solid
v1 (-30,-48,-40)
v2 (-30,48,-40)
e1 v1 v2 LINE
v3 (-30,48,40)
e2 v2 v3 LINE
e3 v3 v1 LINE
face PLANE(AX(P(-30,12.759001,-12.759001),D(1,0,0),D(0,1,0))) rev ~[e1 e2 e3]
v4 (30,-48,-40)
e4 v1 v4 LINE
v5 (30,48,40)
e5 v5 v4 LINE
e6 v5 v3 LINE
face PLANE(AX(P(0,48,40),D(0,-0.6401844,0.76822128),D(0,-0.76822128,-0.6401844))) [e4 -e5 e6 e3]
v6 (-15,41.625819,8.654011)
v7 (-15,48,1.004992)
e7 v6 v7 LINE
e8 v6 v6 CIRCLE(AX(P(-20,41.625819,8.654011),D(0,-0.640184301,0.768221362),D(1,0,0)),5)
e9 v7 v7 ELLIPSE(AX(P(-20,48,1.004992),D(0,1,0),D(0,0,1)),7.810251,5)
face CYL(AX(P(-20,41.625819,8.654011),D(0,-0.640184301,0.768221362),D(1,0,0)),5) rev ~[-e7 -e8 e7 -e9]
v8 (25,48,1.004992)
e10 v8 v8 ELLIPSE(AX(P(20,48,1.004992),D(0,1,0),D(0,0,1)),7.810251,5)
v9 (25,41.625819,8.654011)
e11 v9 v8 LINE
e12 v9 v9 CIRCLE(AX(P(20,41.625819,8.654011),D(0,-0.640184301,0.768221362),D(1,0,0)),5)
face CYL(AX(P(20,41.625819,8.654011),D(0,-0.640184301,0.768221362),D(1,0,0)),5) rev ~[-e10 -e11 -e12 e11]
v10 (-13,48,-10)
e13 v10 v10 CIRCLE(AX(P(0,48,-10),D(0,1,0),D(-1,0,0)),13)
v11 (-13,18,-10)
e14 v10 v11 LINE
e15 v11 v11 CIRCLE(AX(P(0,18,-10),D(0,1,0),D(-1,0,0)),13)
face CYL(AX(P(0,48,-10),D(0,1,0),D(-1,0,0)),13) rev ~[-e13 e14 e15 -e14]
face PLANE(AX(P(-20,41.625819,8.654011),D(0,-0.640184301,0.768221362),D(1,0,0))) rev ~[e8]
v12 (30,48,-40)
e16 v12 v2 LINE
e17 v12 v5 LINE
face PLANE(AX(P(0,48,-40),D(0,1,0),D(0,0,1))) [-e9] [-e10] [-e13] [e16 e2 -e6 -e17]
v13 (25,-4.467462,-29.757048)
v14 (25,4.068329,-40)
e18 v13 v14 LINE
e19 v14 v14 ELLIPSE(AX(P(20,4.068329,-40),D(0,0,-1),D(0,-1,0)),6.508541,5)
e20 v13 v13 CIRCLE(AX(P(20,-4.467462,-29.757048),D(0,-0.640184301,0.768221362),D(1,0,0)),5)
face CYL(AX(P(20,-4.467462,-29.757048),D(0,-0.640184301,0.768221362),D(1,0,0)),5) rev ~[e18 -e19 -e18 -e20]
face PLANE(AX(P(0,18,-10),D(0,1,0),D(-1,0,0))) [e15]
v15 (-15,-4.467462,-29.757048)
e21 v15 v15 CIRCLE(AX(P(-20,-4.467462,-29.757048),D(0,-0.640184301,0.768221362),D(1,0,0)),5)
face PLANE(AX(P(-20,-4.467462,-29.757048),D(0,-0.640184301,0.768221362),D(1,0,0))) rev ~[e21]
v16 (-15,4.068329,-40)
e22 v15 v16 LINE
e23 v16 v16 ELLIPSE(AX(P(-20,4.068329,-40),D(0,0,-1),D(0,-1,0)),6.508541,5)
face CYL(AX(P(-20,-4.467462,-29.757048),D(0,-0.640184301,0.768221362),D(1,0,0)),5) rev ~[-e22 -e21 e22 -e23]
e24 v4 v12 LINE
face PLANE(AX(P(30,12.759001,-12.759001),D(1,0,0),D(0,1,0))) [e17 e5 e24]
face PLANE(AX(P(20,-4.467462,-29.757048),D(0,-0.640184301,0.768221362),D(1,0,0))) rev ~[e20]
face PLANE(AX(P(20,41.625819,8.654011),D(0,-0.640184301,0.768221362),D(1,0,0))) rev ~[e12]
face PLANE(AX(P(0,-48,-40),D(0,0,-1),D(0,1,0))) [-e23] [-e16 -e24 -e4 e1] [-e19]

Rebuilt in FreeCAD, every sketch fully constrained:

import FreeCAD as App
import Part
import Sketcher

V = App.Vector


def add_polygon(sketch, points):
    """Adds a closed chain of lines whose ends are joined by coincident constraints."""
    first, n = sketch.GeometryCount, len(points)
    for a, b in zip(points, points[1:] + points[:1]):
        sketch.addGeometry(Part.LineSegment(App.Vector(*a, 0), App.Vector(*b, 0)), False)
    for i in range(n):
        sketch.addConstraint(Sketcher.Constraint("Coincident", first + i, 2, first + (i + 1) % n, 1))

doc = App.newDocument("Part")
params = doc.addObject("Spreadsheet::Sheet", "Params")
for row, (alias, value) in enumerate([
    ("sketch1_width", "96 mm"),
    ("sketch1_height", "80 mm"),
    ("pad1_length", "60 mm"),
    ("sketch2_diameter", "26 mm"),
    ("pocket1_length", "30 mm"),
    ("sketch3_diameter", "10 mm"),
    ("pocket2_length", "25 mm"),
], start=1):
    params.set(f"A{row}", alias)
    params.set(f"B{row}", "=" + value)
    params.setAlias(f"B{row}", alias)

body = doc.addObject("PartDesign::Body", "Body")

# Sketch on YZ plane
sketch1 = doc.addObject("Sketcher::SketchObject", "Sketch")
body.addObject(sketch1)
sketch1.AttachmentSupport = (doc.YZ_Plane, [""])
sketch1.MapMode = "FlatFace"
add_polygon(sketch1, [(48, 40), (-48, -40), (48, -40)])  # lines 0-2
sketch1.addConstraint(Sketcher.Constraint("Horizontal", 1))
sketch1.addConstraint(Sketcher.Constraint("Vertical", 2))
sketch1.addConstraint(Sketcher.Constraint("Symmetric", 0, 2, 2, 2, -1, 1))
sketch1.addConstraint(Sketcher.Constraint("DistanceX", 1, 1, 1, 2, 96.0))
sketch1.addConstraint(Sketcher.Constraint("DistanceY", 2, 1, 2, 2, 80.0))
sketch1.setExpression("Constraints[6]", "Params.sketch1_width")
sketch1.setExpression("Constraints[7]", "Params.sketch1_height")
pad1 = doc.addObject("PartDesign::Pad", "Pad")
body.addObject(pad1)
pad1.Profile = sketch1
pad1.setExpression("Length", "Params.pad1_length")
pad1.Midplane = True

# Sketch on XZ plane
sketch2 = doc.addObject("Sketcher::SketchObject", "Sketch001")
body.addObject(sketch2)
sketch2.AttachmentSupport = (doc.XZ_Plane, [""])
sketch2.MapMode = "FlatFace"
sketch2.AttachmentOffset = App.Placement(V(0, 0, -48), App.Rotation())
sketch2.addGeometry(Part.Circle(V(0, -10, 0), V(0, 0, 1), 13), False)
sketch2.addConstraint(Sketcher.Constraint("PointOnObject", 0, 3, -2))
sketch2.addConstraint(Sketcher.Constraint("Diameter", 0, 26.0))
sketch2.addConstraint(Sketcher.Constraint("DistanceY", 0, 3, -1, 1, 10.0))
sketch2.setExpression("Constraints[1]", "Params.sketch2_diameter")
pocket1 = doc.addObject("PartDesign::Pocket", "Pocket")
body.addObject(pocket1)
pocket1.Profile = sketch2
pocket1.setExpression("Length", "Params.pocket1_length")
pocket1.Reversed = True

# Sketch on an angled plane
sketch3 = doc.addObject("Sketcher::SketchObject", "Sketch002")
body.addObject(sketch3)
sketch3.Placement = App.Placement(V(0, 12.803688, -15.364426), App.Rotation(V(1, 0, 0), V(0, 0.768221362, 0.640184301), V(0, -0.640184301, 0.768221362), "ZXY"))
sketch3.addGeometry(Part.Circle(V(20, -22, 0), V(0, 0, 1), 5), False)
sketch3.addGeometry(Part.Circle(V(20, 38, 0), V(0, 0, 1), 5), False)
sketch3.addGeometry(Part.Circle(V(-20, -22, 0), V(0, 0, 1), 5), False)
sketch3.addGeometry(Part.Circle(V(-20, 38, 0), V(0, 0, 1), 5), False)
sketch3.addConstraint(Sketcher.Constraint("Equal", 0, 1))
sketch3.addConstraint(Sketcher.Constraint("Equal", 1, 2))
sketch3.addConstraint(Sketcher.Constraint("Equal", 2, 3))
sketch3.addConstraint(Sketcher.Constraint("Symmetric", 0, 3, 2, 3, -2))
sketch3.addConstraint(Sketcher.Constraint("Symmetric", 1, 3, 3, 3, -2))
sketch3.addConstraint(Sketcher.Constraint("Vertical", 0, 3, 1, 3))
sketch3.addConstraint(Sketcher.Constraint("Diameter", 0, 10.0))
sketch3.addConstraint(Sketcher.Constraint("DistanceX", -1, 1, 0, 3, 20.0))
sketch3.addConstraint(Sketcher.Constraint("DistanceY", 0, 3, 1, 3, 60.0))
sketch3.addConstraint(Sketcher.Constraint("DistanceY", 0, 3, -1, 1, 22.481997))
sketch3.setExpression("Constraints[6]", "Params.sketch3_diameter")
pocket2 = doc.addObject("PartDesign::Pocket", "Pocket001")
body.addObject(pocket2)
pocket2.Profile = sketch3
pocket2.setExpression("Length", "Params.pocket2_length")

doc.recompute()
